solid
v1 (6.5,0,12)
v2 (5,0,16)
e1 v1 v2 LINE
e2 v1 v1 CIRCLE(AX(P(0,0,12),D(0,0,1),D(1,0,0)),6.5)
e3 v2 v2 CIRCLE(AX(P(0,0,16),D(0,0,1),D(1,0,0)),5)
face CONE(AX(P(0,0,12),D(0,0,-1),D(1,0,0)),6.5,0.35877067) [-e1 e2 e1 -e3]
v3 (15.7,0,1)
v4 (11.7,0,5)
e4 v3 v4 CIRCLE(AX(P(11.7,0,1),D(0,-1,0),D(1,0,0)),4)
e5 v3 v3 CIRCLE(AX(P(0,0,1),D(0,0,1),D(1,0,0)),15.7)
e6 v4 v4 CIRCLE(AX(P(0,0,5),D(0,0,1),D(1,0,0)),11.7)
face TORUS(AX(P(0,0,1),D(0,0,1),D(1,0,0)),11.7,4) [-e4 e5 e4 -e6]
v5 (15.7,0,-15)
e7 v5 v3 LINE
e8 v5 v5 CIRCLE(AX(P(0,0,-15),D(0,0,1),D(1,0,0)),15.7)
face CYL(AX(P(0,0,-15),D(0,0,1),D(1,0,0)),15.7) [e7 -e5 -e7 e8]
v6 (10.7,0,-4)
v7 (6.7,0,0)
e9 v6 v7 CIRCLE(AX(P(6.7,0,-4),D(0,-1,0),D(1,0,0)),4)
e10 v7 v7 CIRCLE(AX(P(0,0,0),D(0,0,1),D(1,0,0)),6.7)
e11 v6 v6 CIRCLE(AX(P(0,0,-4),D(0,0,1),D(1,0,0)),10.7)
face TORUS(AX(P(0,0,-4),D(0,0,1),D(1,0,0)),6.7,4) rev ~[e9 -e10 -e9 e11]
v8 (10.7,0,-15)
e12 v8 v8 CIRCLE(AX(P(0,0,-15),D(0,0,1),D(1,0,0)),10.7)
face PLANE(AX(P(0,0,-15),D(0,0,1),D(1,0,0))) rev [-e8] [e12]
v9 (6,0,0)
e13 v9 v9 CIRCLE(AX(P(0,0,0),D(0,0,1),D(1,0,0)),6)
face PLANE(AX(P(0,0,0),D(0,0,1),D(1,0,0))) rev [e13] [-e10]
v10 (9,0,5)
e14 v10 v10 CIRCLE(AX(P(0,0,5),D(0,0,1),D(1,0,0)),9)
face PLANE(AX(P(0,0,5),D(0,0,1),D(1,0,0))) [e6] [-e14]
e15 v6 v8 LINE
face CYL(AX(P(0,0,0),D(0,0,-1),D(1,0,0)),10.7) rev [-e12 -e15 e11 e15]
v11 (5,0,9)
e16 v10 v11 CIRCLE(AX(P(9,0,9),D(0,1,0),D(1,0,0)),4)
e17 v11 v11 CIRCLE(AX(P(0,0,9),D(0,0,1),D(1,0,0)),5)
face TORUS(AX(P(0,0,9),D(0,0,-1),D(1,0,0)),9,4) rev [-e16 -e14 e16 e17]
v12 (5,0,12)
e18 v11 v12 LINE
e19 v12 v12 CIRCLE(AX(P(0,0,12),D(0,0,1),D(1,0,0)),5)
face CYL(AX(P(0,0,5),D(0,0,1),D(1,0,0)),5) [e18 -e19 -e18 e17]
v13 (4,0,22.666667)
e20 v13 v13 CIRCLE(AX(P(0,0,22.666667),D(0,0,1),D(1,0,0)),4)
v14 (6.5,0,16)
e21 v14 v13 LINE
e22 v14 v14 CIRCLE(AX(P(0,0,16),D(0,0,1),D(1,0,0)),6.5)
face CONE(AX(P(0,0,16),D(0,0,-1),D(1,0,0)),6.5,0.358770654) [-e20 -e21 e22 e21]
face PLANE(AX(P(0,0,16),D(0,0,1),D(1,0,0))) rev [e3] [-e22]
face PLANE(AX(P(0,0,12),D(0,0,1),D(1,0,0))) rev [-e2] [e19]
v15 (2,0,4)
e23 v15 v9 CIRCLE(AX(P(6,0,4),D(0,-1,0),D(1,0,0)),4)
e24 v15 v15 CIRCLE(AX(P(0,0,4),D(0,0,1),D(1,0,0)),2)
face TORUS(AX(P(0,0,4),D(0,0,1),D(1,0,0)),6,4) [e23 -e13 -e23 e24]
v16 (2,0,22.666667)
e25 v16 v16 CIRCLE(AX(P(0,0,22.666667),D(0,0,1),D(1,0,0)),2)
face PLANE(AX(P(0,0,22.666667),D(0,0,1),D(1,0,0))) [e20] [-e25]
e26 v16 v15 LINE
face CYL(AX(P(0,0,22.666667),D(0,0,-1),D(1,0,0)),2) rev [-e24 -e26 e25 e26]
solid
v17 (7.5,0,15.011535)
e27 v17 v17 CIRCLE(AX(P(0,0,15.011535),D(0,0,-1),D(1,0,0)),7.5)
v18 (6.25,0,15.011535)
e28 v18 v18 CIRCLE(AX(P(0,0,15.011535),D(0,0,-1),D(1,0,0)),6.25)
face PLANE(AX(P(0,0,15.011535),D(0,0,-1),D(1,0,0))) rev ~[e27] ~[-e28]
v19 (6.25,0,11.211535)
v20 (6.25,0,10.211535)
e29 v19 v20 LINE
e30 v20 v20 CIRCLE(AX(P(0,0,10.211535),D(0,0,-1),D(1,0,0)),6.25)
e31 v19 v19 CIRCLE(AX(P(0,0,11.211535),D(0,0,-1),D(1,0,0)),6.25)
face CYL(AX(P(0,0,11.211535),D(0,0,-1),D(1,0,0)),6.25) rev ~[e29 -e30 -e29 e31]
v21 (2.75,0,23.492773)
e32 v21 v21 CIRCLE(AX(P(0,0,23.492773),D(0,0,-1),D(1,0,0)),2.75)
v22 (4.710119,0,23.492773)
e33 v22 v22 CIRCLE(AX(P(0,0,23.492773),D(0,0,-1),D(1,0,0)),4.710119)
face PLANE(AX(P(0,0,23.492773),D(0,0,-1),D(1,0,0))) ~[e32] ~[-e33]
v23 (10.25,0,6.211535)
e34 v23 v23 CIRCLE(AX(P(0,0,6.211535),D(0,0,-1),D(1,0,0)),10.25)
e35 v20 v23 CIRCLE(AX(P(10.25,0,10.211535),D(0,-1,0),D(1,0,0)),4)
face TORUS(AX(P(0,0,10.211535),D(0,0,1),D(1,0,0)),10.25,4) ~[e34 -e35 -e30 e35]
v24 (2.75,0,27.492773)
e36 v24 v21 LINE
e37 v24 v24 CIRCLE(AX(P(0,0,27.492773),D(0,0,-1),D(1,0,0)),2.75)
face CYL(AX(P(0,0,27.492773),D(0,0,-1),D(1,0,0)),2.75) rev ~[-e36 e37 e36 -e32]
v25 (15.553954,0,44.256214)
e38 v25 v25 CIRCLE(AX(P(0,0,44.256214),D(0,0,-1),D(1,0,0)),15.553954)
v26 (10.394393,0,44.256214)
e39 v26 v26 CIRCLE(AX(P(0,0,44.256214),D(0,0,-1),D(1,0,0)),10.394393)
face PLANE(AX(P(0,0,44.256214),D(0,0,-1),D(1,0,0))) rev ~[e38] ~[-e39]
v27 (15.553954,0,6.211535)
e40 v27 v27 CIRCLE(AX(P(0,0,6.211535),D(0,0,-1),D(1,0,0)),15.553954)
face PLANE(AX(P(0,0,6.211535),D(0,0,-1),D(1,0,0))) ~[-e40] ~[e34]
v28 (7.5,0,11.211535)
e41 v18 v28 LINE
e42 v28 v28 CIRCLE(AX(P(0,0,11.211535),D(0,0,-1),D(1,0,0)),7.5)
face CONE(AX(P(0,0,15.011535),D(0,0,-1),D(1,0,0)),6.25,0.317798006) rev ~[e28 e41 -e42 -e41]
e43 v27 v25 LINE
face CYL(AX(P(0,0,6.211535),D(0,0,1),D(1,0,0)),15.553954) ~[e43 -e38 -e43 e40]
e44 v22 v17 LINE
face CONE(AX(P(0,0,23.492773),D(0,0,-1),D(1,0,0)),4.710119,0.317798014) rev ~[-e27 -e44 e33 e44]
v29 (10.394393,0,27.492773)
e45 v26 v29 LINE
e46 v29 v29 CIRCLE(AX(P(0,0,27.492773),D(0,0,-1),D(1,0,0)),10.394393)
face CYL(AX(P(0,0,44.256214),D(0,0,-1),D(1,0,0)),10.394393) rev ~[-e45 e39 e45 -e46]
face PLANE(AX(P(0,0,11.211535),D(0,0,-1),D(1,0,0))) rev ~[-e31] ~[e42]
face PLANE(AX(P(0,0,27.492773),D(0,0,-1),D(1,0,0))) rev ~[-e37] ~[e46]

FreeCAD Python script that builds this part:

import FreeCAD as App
import Part
import Sketcher

V = App.Vector


def edges_at(feature, points):
    """Names of the edges that pass closest to the given points."""
    edges = feature.Shape.Edges
    near = lambda p: min(range(len(edges)), key=lambda i: edges[i].distToShape(Part.Vertex(*p))[0])
    return sorted({f"Edge{near(p) + 1}" for p in points})

doc = App.newDocument("Part")
body = doc.addObject("PartDesign::Body", "Body")

sketch1 = body.newObject("Sketcher::SketchObject", "Sketch")
sketch1.AttachmentSupport = (doc.getObject("XZ_Plane"), [""])
sketch1.MapMode = "FlatFace"
sketch1.addGeometry([
    Part.LineSegment(V(10.7, 0, 0), V(10.7, -15, 0)),
    Part.LineSegment(V(10.7, -15, 0), V(15.7, -15, 0)),
    Part.LineSegment(V(15.7, -15, 0), V(15.7, 5, 0)),
    Part.LineSegment(V(15.7, 5, 0), V(5, 5, 0)),
    Part.LineSegment(V(5, 5, 0), V(5, 12, 0)),
    Part.LineSegment(V(5, 12, 0), V(6.5, 12, 0)),
    Part.LineSegment(V(6.5, 12, 0), V(5, 16, 0)),
    Part.LineSegment(V(5, 16, 0), V(6.5, 16, 0)),
    Part.LineSegment(V(6.5, 16, 0), V(4, 22.7, 0)),
    Part.LineSegment(V(4, 22.7, 0), V(2, 22.7, 0)),
    Part.LineSegment(V(2, 22.7, 0), V(2, 0, 0)),
    Part.LineSegment(V(2, 0, 0), V(10.7, 0, 0)),
], False)
sketch1.addConstraint([
    Sketcher.Constraint("Coincident", 0, 2, 1, 1),
    Sketcher.Constraint("Coincident", 1, 2, 2, 1),
    Sketcher.Constraint("Coincident", 2, 2, 3, 1),
    Sketcher.Constraint("Coincident", 3, 2, 4, 1),
    Sketcher.Constraint("Coincident", 4, 2, 5, 1),
    Sketcher.Constraint("Coincident", 5, 2, 6, 1),
    Sketcher.Constraint("Coincident", 6, 2, 7, 1),
    Sketcher.Constraint("Coincident", 7, 2, 8, 1),
    Sketcher.Constraint("Coincident", 8, 2, 9, 1),
    Sketcher.Constraint("Coincident", 9, 2, 10, 1),
    Sketcher.Constraint("Coincident", 10, 2, 11, 1),
    Sketcher.Constraint("Coincident", 11, 2, 0, 1),
    Sketcher.Constraint("Vertical", 0),
    Sketcher.Constraint("Horizontal", 1),
    Sketcher.Constraint("Vertical", 2),
    Sketcher.Constraint("Horizontal", 3),
    Sketcher.Constraint("Vertical", 4),
    Sketcher.Constraint("Horizontal", 5),
    Sketcher.Constraint("Horizontal", 7),
    Sketcher.Constraint("Horizontal", 9),
    Sketcher.Constraint("Vertical", 10),
    Sketcher.Constraint("Horizontal", 11),
    Sketcher.Constraint("PointOnObject", 10, 2, -1),
    Sketcher.Constraint("Parallel", 6, 8),
    Sketcher.Constraint("Vertical", 4, 2, 6, 2),
    Sketcher.Constraint("Vertical", 5, 2, 7, 2),
    Sketcher.Constraint("DistanceX", 1, 1, 1, 2, 5.0),
    Sketcher.Constraint("DistanceX", 9, 2, 9, 1, 2.0),
    Sketcher.Constraint("DistanceY", 0, 2, 0, 1, 15.0),
    Sketcher.Constraint("DistanceY", 2, 1, 2, 2, 20.0),
    Sketcher.Constraint("DistanceY", 4, 1, 4, 2, 7.0),
    Sketcher.Constraint("DistanceX", 3, 2, 3, 1, 10.7),
    Sketcher.Constraint("DistanceX", 5, 1, 5, 2, 1.5),
    Sketcher.Constraint("DistanceX", 11, 1, 11, 2, 8.7),
    Sketcher.Constraint("DistanceX", -1, 1, 3, 2, 5.0),
    Sketcher.Constraint("DistanceY", -1, 1, 6, 2, 16.0),
])
revolution = body.newObject("PartDesign::Revolution", "Revolution")
revolution.Profile = sketch1
revolution.ReferenceAxis = (sketch1, ["V_Axis"])
revolution.Angle = 360
doc.recompute()

fillet = body.newObject("PartDesign::Fillet", "Fillet")
fillet.Base = (revolution, edges_at(revolution, [
    (-5, 0, 5),
    (-15.7, 0, 5),
    (-10.7, 0, 0),
    (-2, 0, 0),
]))
fillet.Radius = 4
body2 = doc.addObject("PartDesign::Body", "Body001")

sketch2 = body2.newObject("Sketcher::SketchObject", "Sketch001")
sketch2.AttachmentSupport = (doc.getObject("XZ_Plane001"), [""])
sketch2.MapMode = "FlatFace"
sketch2.addGeometry([
    Part.LineSegment(V(2.8, 27.5, 0), V(2.8, 23.5, 0)),
    Part.LineSegment(V(2.8, 23.5, 0), V(4.7, 23.5, 0)),
    Part.LineSegment(V(4.7, 23.5, 0), V(7.5, 15, 0)),
    Part.LineSegment(V(7.5, 15, 0), V(6.2, 15, 0)),
    Part.LineSegment(V(6.2, 15, 0), V(7.5, 11.2, 0)),
    Part.LineSegment(V(7.5, 11.2, 0), V(6.2, 11.2, 0)),
    Part.LineSegment(V(6.2, 11.2, 0), V(6.2, 6.2, 0)),
    Part.LineSegment(V(6.2, 6.2, 0), V(15.6, 6.2, 0)),
    Part.LineSegment(V(15.6, 6.2, 0), V(15.6, 44.3, 0)),
    Part.LineSegment(V(15.6, 44.3, 0), V(10.4, 44.3, 0)),
    Part.LineSegment(V(10.4, 44.3, 0), V(10.4, 27.5, 0)),
    Part.LineSegment(V(10.4, 27.5, 0), V(2.8, 27.5, 0)),
], False)
sketch2.addConstraint([
    Sketcher.Constraint("Coincident", 0, 2, 1, 1),
    Sketcher.Constraint("Coincident", 1, 2, 2, 1),
    Sketcher.Constraint("Coincident", 2, 2, 3, 1),
    Sketcher.Constraint("Coincident", 3, 2, 4, 1),
    Sketcher.Constraint("Coincident", 4, 2, 5, 1),
    Sketcher.Constraint("Coincident", 5, 2, 6, 1),
    Sketcher.Constraint("Coincident", 6, 2, 7, 1),
    Sketcher.Constraint("Coincident", 7, 2, 8, 1),
    Sketcher.Constraint("Coincident", 8, 2, 9, 1),
    Sketcher.Constraint("Coincident", 9, 2, 10, 1),
    Sketcher.Constraint("Coincident", 10, 2, 11, 1),
    Sketcher.Constraint("Coincident", 11, 2, 0, 1),
    Sketcher.Constraint("Vertical", 0),
    Sketcher.Constraint("Horizontal", 1),
    Sketcher.Constraint("Horizontal", 3),
    Sketcher.Constraint("Horizontal", 5),
    Sketcher.Constraint("Vertical", 6),
    Sketcher.Constraint("Horizontal", 7),
    Sketcher.Constraint("Vertical", 8),
    Sketcher.Constraint("Horizontal", 9),
    Sketcher.Constraint("Vertical", 10),
    Sketcher.Constraint("Horizontal", 11),
    Sketcher.Constraint("Parallel", 2, 4),
    Sketcher.Constraint("Vertical", 2, 2, 4, 2),
    Sketcher.Constraint("Vertical", 3, 2, 5, 2),
    Sketcher.Constraint("DistanceY", 0, 2, 0, 1, 4.0),
    Sketcher.Constraint("DistanceY", 6, 2, 6, 1, 5.0),
    Sketcher.Constraint("DistanceX", 3, 2, 3, 1, 1.25),
    Sketcher.Constraint("DistanceX", -1, 1, 2, 2, 7.5),
    Sketcher.Constraint("DistanceX", 0, 2, 3, 2, 3.5),
    Sketcher.Constraint("DistanceY", 4, 2, 2, 2, 3.8),
    Sketcher.Constraint("DistanceX", 1, 1, 1, 2, 1.960119),
    Sketcher.Constraint("DistanceX", 9, 2, 9, 1, 5.159561),
    Sketcher.Constraint("DistanceY", 8, 1, 8, 2, 38.044679),
    Sketcher.Constraint("DistanceX", 7, 1, 7, 2, 9.303954),
    Sketcher.Constraint("DistanceY", -1, 1, 0, 2, 23.492773),
])
revolution2 = body2.newObject("PartDesign::Revolution", "Revolution001")
revolution2.Profile = sketch2
revolution2.ReferenceAxis = (sketch2, ["V_Axis"])
revolution2.Angle = 360
doc.recompute()

fillet2 = body2.newObject("PartDesign::Fillet", "Fillet001")
fillet2.Base = (revolution2, edges_at(revolution2, [(-6.25, 0, 6.212)]))
fillet2.Radius = 4

doc.recompute()
